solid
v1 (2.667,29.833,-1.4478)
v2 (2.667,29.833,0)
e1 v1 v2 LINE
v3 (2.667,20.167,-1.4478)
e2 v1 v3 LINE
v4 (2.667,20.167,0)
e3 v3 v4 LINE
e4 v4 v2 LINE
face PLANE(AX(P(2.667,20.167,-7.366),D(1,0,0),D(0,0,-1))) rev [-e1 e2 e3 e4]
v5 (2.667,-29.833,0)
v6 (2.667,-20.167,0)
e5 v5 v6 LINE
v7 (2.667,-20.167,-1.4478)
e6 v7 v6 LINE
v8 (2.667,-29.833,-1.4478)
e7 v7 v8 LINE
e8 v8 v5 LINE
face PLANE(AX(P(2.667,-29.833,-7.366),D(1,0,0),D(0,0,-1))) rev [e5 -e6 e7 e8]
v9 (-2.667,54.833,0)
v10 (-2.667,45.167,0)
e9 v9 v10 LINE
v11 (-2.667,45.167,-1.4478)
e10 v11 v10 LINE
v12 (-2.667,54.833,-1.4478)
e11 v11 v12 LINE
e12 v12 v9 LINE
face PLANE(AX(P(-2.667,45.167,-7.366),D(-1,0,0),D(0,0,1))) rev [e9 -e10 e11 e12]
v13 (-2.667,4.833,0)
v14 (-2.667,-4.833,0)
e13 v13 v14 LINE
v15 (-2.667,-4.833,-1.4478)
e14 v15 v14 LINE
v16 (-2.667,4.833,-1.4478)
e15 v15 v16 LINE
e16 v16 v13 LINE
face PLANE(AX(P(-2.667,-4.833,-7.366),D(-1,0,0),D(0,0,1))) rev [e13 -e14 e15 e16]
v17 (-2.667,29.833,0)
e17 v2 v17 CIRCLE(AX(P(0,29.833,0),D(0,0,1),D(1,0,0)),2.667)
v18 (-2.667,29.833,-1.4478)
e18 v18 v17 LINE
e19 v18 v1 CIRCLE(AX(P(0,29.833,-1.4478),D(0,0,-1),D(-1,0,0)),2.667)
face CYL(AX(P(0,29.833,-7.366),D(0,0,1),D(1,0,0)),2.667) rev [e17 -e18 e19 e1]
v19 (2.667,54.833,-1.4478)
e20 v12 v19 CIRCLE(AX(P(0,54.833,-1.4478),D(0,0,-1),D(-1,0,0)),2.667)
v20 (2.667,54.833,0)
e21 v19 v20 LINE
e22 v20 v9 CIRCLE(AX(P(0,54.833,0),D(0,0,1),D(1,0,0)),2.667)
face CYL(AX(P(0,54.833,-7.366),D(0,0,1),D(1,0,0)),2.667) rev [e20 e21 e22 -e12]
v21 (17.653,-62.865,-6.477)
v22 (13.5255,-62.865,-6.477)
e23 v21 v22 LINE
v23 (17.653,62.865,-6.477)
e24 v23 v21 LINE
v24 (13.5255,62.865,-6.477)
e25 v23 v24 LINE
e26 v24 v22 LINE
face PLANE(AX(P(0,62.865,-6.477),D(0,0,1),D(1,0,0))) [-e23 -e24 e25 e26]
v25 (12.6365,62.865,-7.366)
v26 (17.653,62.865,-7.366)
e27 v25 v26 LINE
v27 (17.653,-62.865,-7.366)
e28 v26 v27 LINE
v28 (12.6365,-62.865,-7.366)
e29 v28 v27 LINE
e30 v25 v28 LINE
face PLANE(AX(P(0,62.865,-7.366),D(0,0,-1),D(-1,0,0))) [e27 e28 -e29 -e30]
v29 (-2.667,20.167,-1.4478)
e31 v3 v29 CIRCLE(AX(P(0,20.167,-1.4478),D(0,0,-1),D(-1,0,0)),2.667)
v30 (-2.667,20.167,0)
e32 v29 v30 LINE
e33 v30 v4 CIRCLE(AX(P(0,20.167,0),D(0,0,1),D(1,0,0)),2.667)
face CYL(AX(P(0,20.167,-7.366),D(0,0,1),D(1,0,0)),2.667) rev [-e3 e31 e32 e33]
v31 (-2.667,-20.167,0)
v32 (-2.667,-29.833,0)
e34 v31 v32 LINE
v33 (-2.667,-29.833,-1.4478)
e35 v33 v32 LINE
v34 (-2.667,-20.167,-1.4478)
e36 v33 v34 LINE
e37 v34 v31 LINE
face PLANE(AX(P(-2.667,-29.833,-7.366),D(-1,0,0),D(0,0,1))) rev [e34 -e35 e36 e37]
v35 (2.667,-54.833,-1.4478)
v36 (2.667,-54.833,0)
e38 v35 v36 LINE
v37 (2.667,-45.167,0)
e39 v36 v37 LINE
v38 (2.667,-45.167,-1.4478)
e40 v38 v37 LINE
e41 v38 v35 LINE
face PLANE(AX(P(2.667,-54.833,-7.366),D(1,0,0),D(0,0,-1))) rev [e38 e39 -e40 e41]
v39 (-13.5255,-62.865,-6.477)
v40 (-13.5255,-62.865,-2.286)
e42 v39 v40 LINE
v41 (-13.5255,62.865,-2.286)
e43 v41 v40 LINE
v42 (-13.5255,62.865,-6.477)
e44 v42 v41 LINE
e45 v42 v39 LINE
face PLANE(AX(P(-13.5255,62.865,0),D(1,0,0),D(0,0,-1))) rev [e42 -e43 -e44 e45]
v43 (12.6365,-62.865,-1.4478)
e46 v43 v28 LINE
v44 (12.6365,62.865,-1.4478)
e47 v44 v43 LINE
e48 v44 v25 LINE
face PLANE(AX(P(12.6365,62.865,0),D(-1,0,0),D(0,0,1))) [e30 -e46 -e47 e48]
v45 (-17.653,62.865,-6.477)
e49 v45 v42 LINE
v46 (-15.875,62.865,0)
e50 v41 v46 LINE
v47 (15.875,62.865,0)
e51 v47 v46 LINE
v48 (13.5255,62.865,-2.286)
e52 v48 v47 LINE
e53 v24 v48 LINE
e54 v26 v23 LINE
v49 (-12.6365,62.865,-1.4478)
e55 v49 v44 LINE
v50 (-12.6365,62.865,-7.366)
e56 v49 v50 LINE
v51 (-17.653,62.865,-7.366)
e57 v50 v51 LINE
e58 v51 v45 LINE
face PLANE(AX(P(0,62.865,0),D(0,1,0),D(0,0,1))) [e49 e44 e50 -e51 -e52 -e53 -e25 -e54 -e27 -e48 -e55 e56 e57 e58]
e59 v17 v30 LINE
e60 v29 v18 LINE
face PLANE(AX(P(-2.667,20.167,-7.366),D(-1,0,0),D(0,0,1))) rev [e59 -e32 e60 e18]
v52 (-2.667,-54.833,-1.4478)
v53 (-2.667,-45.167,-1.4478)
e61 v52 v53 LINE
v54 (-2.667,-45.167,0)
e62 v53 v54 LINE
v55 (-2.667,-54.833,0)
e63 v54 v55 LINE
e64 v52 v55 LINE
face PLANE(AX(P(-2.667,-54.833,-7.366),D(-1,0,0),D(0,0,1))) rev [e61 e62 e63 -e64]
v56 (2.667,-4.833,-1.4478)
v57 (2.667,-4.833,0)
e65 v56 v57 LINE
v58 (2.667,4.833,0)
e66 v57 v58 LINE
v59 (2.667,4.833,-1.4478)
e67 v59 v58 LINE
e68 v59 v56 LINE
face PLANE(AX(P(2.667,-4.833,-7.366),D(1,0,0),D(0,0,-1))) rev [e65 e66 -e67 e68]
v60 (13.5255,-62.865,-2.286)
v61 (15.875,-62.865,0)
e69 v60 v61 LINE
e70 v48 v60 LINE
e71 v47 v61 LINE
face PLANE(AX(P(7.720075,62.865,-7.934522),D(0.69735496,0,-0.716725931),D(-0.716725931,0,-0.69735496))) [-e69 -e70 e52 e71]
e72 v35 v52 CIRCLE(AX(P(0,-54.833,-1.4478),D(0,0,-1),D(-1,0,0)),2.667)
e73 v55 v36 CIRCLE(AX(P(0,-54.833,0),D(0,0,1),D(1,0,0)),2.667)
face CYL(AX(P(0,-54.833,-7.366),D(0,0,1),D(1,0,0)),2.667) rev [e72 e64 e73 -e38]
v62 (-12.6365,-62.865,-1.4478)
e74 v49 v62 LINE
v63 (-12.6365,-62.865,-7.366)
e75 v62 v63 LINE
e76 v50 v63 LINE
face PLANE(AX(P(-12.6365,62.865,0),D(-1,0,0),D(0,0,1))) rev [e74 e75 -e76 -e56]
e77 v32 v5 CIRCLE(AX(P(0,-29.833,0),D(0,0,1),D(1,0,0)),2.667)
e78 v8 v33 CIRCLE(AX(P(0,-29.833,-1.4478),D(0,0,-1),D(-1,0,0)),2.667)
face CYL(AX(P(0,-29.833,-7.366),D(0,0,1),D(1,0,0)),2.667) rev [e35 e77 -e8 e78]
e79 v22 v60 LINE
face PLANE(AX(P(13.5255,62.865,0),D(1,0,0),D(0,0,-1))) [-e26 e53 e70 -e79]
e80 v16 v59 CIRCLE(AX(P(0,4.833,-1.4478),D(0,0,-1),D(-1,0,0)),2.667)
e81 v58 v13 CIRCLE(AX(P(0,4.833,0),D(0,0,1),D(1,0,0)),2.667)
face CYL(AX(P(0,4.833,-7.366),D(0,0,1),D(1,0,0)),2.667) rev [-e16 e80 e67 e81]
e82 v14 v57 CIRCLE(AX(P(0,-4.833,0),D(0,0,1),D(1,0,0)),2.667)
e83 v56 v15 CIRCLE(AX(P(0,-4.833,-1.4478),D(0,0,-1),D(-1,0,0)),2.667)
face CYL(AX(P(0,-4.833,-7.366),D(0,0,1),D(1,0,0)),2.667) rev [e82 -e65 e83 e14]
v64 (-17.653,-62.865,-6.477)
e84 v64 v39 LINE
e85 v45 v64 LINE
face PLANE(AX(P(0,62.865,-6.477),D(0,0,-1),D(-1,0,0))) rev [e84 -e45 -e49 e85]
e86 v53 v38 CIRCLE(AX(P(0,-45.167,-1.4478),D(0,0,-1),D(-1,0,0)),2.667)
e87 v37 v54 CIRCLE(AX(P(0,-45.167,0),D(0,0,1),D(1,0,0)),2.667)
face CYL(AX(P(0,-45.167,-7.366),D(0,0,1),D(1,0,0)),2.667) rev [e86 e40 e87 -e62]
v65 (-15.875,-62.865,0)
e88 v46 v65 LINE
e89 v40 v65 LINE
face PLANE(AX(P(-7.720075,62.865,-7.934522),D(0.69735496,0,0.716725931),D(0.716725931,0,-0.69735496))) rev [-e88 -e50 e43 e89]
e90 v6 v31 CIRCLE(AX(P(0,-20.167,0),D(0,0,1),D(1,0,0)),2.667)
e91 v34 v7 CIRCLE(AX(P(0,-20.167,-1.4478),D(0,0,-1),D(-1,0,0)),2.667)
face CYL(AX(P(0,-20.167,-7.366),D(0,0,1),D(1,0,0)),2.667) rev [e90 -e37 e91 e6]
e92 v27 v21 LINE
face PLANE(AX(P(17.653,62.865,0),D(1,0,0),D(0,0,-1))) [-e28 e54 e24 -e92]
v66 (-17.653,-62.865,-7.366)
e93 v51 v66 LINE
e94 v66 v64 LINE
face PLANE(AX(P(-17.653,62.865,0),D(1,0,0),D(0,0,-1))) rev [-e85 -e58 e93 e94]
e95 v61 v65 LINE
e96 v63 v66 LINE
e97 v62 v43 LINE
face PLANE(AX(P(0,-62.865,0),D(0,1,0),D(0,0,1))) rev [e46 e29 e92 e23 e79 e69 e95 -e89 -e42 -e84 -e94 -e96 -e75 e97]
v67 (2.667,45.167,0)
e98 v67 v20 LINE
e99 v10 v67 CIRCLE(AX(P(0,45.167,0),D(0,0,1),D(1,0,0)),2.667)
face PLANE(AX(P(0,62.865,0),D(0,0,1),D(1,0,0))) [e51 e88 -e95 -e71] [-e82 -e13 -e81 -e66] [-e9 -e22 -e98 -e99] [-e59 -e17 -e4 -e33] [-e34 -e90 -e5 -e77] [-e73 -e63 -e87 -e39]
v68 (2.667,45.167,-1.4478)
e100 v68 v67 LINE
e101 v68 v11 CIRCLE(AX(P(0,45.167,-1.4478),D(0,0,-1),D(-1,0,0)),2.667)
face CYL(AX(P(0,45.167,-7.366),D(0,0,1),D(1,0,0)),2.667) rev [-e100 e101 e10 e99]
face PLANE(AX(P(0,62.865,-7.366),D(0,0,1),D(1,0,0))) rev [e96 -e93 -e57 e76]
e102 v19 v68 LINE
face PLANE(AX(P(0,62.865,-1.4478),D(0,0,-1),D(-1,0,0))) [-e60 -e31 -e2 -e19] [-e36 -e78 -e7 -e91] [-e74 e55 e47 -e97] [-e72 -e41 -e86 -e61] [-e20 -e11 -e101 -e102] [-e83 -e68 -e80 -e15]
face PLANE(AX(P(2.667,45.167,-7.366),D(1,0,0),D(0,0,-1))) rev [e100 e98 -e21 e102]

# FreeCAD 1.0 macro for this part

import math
import FreeCAD as App
import Part
import Sketcher
from FreeCAD import Vector
Q = App.Units.Quantity

doc = App.newDocument("Part")
body = doc.addObject("PartDesign::Body", "Body")

# Sketch on XZ plane
sketch1 = body.newObject("Sketcher::SketchObject", "Sketch")
sketch1.AttachmentSupport = (doc.getObject("XZ_Plane"), [""])
sketch1.MapMode = "FlatFace"
sketch1.addGeometry([
    Part.LineSegment(Vector(-15.875, 0, 0), Vector(15.875, 0, 0)),  # 0
    Part.LineSegment(Vector(15.875, 0, 0), Vector(13.5255, -2.286, 0)),  # 1
    Part.LineSegment(Vector(13.5255, -2.286, 0), Vector(13.5255, -6.477, 0)),  # 2
    Part.LineSegment(Vector(13.5255, -6.477, 0), Vector(17.653, -6.477, 0)),  # 3
    Part.LineSegment(Vector(17.653, -6.477, 0), Vector(17.653, -7.366, 0)),  # 4
    Part.LineSegment(Vector(17.653, -7.366, 0), Vector(12.6365, -7.366, 0)),  # 5
    Part.LineSegment(Vector(12.6365, -7.366, 0), Vector(12.6365, -1.4478, 0)),  # 6
    Part.LineSegment(Vector(12.6365, -1.4478, 0), Vector(-12.6365, -1.4478, 0)),  # 7
    Part.LineSegment(Vector(-12.6365, -1.4478, 0), Vector(-12.6365, -7.366, 0)),  # 8
    Part.LineSegment(Vector(-12.6365, -7.366, 0), Vector(-17.653, -7.366, 0)),  # 9
    Part.LineSegment(Vector(-17.653, -7.366, 0), Vector(-17.653, -6.477, 0)),  # 10
    Part.LineSegment(Vector(-17.653, -6.477, 0), Vector(-13.5255, -6.477, 0)),  # 11
    Part.LineSegment(Vector(-13.5255, -6.477, 0), Vector(-13.5255, -2.286, 0)),  # 12
    Part.LineSegment(Vector(-13.5255, -2.286, 0), Vector(-15.875, 0, 0)),  # 13
], False)
sketch1.addConstraint([
    Sketcher.Constraint("Coincident", 0, 2, 1, 1),
    Sketcher.Constraint("Coincident", 1, 2, 2, 1),
    Sketcher.Constraint("Coincident", 2, 2, 3, 1),
    Sketcher.Constraint("Coincident", 3, 2, 4, 1),
    Sketcher.Constraint("Coincident", 4, 2, 5, 1),
    Sketcher.Constraint("Coincident", 5, 2, 6, 1),
    Sketcher.Constraint("Coincident", 6, 2, 7, 1),
    Sketcher.Constraint("Coincident", 7, 2, 8, 1),
    Sketcher.Constraint("Coincident", 8, 2, 9, 1),
    Sketcher.Constraint("Coincident", 9, 2, 10, 1),
    Sketcher.Constraint("Coincident", 10, 2, 11, 1),
    Sketcher.Constraint("Coincident", 11, 2, 12, 1),
    Sketcher.Constraint("Coincident", 12, 2, 13, 1),
    Sketcher.Constraint("Coincident", 13, 2, 0, 1),
    Sketcher.Constraint("Horizontal", 0),
    Sketcher.Constraint("Vertical", 2),
    Sketcher.Constraint("Horizontal", 3),
    Sketcher.Constraint("Vertical", 4),
    Sketcher.Constraint("Horizontal", 5),
    Sketcher.Constraint("Vertical", 6),
    Sketcher.Constraint("Horizontal", 7),
    Sketcher.Constraint("Vertical", 8),
    Sketcher.Constraint("Horizontal", 9),
    Sketcher.Constraint("Vertical", 10),
    Sketcher.Constraint("Horizontal", 11),
    Sketcher.Constraint("Vertical", 12),
    Sketcher.Constraint("Symmetric", 0, 2, 13, 2, -1, 1),
    Sketcher.Constraint("Symmetric", 5, 2, 8, 2, -2),
    Sketcher.Constraint("Symmetric", 3, 2, 10, 2, -2),
    Sketcher.Constraint("Symmetric", 1, 2, 12, 2, -2),
    Sketcher.Constraint("DistanceX", 0, 1, 0, 2, Q("1.25 in")),
    Sketcher.Constraint("DistanceY", 4, 2, 1, 2, Q("0.2 in")),
    Sketcher.Constraint("DistanceX", 7, 2, 7, 1, Q("0.995 in")),
    Sketcher.Constraint("DistanceY", 2, 2, 2, 1, Q("0.165 in")),
    Sketcher.Constraint("DistanceY", 6, 1, 6, 2, Q("0.233 in")),
    Sketcher.Constraint("DistanceY", 1, 2, -1, 1, Q("0.09 in")),
    Sketcher.Constraint("DistanceX", 0, 2, 3, 2, Q("0.07 in")),
    Sketcher.Constraint("DistanceX", 7, 2, 1, 2, Q("1.03 in")),
])
pad1 = body.newObject("PartDesign::Pad", "Pad")
pad1.Profile = sketch1
pad1.Length = Q("4.95 in")
pad1.Midplane = True

# Sketch on XY plane
sketch2 = body.newObject("Sketcher::SketchObject", "Sketch001")
sketch2.AttachmentSupport = (doc.getObject("XY_Plane"), [""])
sketch2.MapMode = "FlatFace"
sketch2.addGeometry([
    Part.LineSegment(Vector(-2.667, 4.833, 0), Vector(-2.667, -4.833, 0)),  # 0
    Part.ArcOfCircle(Part.Circle(Vector(0, -4.833, 0), Vector(0, 0, 1), 2.667), math.radians(180), math.radians(360)),  # 1
    Part.LineSegment(Vector(2.667, -4.833, 0), Vector(2.667, 4.833, 0)),  # 2
    Part.ArcOfCircle(Part.Circle(Vector(0, 4.833, 0), Vector(0, 0, 1), 2.667), math.radians(0), math.radians(180)),  # 3
    Part.LineSegment(Vector(-2.667, 29.833, 0), Vector(-2.667, 20.167, 0)),  # 4
    Part.ArcOfCircle(Part.Circle(Vector(0, 20.167, 0), Vector(0, 0, 1), 2.667), math.radians(180), math.radians(360)),  # 5
    Part.LineSegment(Vector(2.667, 20.167, 0), Vector(2.667, 29.833, 0)),  # 6
    Part.ArcOfCircle(Part.Circle(Vector(0, 29.833, 0), Vector(0, 0, 1), 2.667), math.radians(0), math.radians(180)),  # 7
    Part.LineSegment(Vector(-2.667, 54.833, 0), Vector(-2.667, 45.167, 0)),  # 8
    Part.ArcOfCircle(Part.Circle(Vector(0, 45.167, 0), Vector(0, 0, 1), 2.667), math.radians(180), math.radians(360)),  # 9
    Part.LineSegment(Vector(2.667, 45.167, 0), Vector(2.667, 54.833, 0)),  # 10
    Part.ArcOfCircle(Part.Circle(Vector(0, 54.833, 0), Vector(0, 0, 1), 2.667), math.radians(0), math.radians(180)),  # 11
    Part.LineSegment(Vector(-2.667, -20.167, 0), Vector(-2.667, -29.833, 0)),  # 12
    Part.ArcOfCircle(Part.Circle(Vector(0, -29.833, 0), Vector(0, 0, 1), 2.667), math.radians(180), math.radians(360)),  # 13
    Part.LineSegment(Vector(2.667, -29.833, 0), Vector(2.667, -20.167, 0)),  # 14
    Part.ArcOfCircle(Part.Circle(Vector(0, -20.167, 0), Vector(0, 0, 1), 2.667), math.radians(0), math.radians(180)),  # 15
    Part.LineSegment(Vector(-2.667, -45.167, 0), Vector(-2.667, -54.833, 0)),  # 16
    Part.ArcOfCircle(Part.Circle(Vector(0, -54.833, 0), Vector(0, 0, 1), 2.667), math.radians(180), math.radians(360)),  # 17
    Part.LineSegment(Vector(2.667, -54.833, 0), Vector(2.667, -45.167, 0)),  # 18
    Part.ArcOfCircle(Part.Circle(Vector(0, -45.167, 0), Vector(0, 0, 1), 2.667), math.radians(0), math.radians(180)),  # 19
], False)
sketch2.addConstraint([
    Sketcher.Constraint("Tangent", 0, 2, 1, 1),
    Sketcher.Constraint("Tangent", 1, 2, 2, 1),
    Sketcher.Constraint("Tangent", 2, 2, 3, 1),
    Sketcher.Constraint("Tangent", 3, 2, 0, 1),
    Sketcher.Constraint("Tangent", 4, 2, 5, 1),
    Sketcher.Constraint("Tangent", 5, 2, 6, 1),
    Sketcher.Constraint("Tangent", 6, 2, 7, 1),
    Sketcher.Constraint("Tangent", 7, 2, 4, 1),
    Sketcher.Constraint("Tangent", 8, 2, 9, 1),
    Sketcher.Constraint("Tangent", 9, 2, 10, 1),
    Sketcher.Constraint("Tangent", 10, 2, 11, 1),
    Sketcher.Constraint("Tangent", 11, 2, 8, 1),
    Sketcher.Constraint("Tangent", 12, 2, 13, 1),
    Sketcher.Constraint("Tangent", 13, 2, 14, 1),
    Sketcher.Constraint("Tangent", 14, 2, 15, 1),
    Sketcher.Constraint("Tangent", 15, 2, 12, 1),
    Sketcher.Constraint("Tangent", 16, 2, 17, 1),
    Sketcher.Constraint("Tangent", 17, 2, 18, 1),
    Sketcher.Constraint("Tangent", 18, 2, 19, 1),
    Sketcher.Constraint("Tangent", 19, 2, 16, 1),
    Sketcher.Constraint("Vertical", 0),
    Sketcher.Constraint("Vertical", 2),
    Sketcher.Constraint("Vertical", 4),
    Sketcher.Constraint("Vertical", 6),
    Sketcher.Constraint("Vertical", 8),
    Sketcher.Constraint("Vertical", 10),
    Sketcher.Constraint("Vertical", 12),
    Sketcher.Constraint("Vertical", 14),
    Sketcher.Constraint("Vertical", 16),
    Sketcher.Constraint("Vertical", 18),
    Sketcher.Constraint("Equal", 3, 5),
    Sketcher.Constraint("Equal", 7, 9),
    Sketcher.Constraint("Equal", 11, 13),
    Sketcher.Constraint("Equal", 15, 17),
    Sketcher.Constraint("Symmetric", 1, 3, 3, 3, -1, 1),
    Sketcher.Constraint("Symmetric", 7, 3, 13, 3, -1, 1),
    Sketcher.Constraint("Symmetric", 11, 3, 17, 3, -1, 1),
    Sketcher.Constraint("Symmetric", 5, 3, 15, 3, -1),
    Sketcher.Constraint("Symmetric", 9, 3, 19, 3, -1),
    Sketcher.Constraint("Equal", 2, 4),
    Sketcher.Constraint("Equal", 6, 8),
    Sketcher.Constraint("Radius", 1, Q("0.105 in")),
    Sketcher.Constraint("DistanceY", 0, 2, 0, 1, 9.666),
    Sketcher.Constraint("DistanceY", -1, 1, 5, 3, 20.167),
    Sketcher.Constraint("DistanceY", -1, 1, 9, 3, 45.167),
])
pocket1 = body.newObject("PartDesign::Pocket", "Pocket")
pocket1.Profile = sketch2
pocket1.Type = "ThroughAll"

doc.recompute()
